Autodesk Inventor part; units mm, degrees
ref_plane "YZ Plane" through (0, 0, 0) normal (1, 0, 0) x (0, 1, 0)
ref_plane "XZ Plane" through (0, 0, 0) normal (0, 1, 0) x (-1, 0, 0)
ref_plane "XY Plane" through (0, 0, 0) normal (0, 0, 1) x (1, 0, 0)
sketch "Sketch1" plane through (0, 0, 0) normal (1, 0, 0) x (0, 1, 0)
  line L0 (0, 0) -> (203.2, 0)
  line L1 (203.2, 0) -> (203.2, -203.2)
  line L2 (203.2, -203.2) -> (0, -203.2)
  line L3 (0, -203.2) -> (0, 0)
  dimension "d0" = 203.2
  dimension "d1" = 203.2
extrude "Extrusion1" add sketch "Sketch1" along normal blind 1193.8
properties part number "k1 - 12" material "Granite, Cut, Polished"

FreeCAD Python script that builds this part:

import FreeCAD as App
import Part
import Sketcher
Q = App.Units.Quantity

doc = App.newDocument("Part")
params = doc.addObject("Spreadsheet::Sheet", "Params")
for row, (alias, value) in enumerate([
    ("sketch1_width", "8 in"),
    ("pad1_length", "47 in"),
], start=1):
    params.set(f"A{row}", alias)
    params.set(f"B{row}", "=" + value)
    params.setAlias(f"B{row}", alias)

body = doc.addObject("PartDesign::Body", "Body")

# Sketch on YZ plane
sketch1 = body.newObject("Sketcher::SketchObject", "Sketch")
sketch1.AttachmentSupport = (doc.getObject("YZ_Plane"), [""])
sketch1.MapMode = "FlatFace"
sketch1.addGeometry([
    Part.LineSegment(App.Vector(203.2, 0, 0), App.Vector(0, 0, 0)),
    Part.LineSegment(App.Vector(0, 0, 0), App.Vector(0, -203.2, 0)),
    Part.LineSegment(App.Vector(0, -203.2, 0), App.Vector(203.2, -203.2, 0)),
    Part.LineSegment(App.Vector(203.2, -203.2, 0), App.Vector(203.2, 0, 0)),
], False)
sketch1.addConstraint([
    Sketcher.Constraint("Coincident", 0, 2, 1, 1),
    Sketcher.Constraint("Coincident", 1, 2, 2, 1),
    Sketcher.Constraint("Coincident", 2, 2, 3, 1),
    Sketcher.Constraint("Coincident", 3, 2, 0, 1),
    Sketcher.Constraint("Horizontal", 0),
    Sketcher.Constraint("Vertical", 1),
    Sketcher.Constraint("Horizontal", 2),
    Sketcher.Constraint("Vertical", 3),
    Sketcher.Constraint("Coincident", 0, 2, -1, 1),
    Sketcher.Constraint("Equal", 2, 1),
    Sketcher.Constraint("DistanceX", 0, 2, 0, 1, Q("8 in")),
])
sketch1.setExpression("Constraints[10]", "Params.sketch1_width")
pad1 = body.newObject("PartDesign::Pad", "Pad")
pad1.Profile = sketch1
pad1.setExpression("Length", "Params.pad1_length")

doc.recompute()
